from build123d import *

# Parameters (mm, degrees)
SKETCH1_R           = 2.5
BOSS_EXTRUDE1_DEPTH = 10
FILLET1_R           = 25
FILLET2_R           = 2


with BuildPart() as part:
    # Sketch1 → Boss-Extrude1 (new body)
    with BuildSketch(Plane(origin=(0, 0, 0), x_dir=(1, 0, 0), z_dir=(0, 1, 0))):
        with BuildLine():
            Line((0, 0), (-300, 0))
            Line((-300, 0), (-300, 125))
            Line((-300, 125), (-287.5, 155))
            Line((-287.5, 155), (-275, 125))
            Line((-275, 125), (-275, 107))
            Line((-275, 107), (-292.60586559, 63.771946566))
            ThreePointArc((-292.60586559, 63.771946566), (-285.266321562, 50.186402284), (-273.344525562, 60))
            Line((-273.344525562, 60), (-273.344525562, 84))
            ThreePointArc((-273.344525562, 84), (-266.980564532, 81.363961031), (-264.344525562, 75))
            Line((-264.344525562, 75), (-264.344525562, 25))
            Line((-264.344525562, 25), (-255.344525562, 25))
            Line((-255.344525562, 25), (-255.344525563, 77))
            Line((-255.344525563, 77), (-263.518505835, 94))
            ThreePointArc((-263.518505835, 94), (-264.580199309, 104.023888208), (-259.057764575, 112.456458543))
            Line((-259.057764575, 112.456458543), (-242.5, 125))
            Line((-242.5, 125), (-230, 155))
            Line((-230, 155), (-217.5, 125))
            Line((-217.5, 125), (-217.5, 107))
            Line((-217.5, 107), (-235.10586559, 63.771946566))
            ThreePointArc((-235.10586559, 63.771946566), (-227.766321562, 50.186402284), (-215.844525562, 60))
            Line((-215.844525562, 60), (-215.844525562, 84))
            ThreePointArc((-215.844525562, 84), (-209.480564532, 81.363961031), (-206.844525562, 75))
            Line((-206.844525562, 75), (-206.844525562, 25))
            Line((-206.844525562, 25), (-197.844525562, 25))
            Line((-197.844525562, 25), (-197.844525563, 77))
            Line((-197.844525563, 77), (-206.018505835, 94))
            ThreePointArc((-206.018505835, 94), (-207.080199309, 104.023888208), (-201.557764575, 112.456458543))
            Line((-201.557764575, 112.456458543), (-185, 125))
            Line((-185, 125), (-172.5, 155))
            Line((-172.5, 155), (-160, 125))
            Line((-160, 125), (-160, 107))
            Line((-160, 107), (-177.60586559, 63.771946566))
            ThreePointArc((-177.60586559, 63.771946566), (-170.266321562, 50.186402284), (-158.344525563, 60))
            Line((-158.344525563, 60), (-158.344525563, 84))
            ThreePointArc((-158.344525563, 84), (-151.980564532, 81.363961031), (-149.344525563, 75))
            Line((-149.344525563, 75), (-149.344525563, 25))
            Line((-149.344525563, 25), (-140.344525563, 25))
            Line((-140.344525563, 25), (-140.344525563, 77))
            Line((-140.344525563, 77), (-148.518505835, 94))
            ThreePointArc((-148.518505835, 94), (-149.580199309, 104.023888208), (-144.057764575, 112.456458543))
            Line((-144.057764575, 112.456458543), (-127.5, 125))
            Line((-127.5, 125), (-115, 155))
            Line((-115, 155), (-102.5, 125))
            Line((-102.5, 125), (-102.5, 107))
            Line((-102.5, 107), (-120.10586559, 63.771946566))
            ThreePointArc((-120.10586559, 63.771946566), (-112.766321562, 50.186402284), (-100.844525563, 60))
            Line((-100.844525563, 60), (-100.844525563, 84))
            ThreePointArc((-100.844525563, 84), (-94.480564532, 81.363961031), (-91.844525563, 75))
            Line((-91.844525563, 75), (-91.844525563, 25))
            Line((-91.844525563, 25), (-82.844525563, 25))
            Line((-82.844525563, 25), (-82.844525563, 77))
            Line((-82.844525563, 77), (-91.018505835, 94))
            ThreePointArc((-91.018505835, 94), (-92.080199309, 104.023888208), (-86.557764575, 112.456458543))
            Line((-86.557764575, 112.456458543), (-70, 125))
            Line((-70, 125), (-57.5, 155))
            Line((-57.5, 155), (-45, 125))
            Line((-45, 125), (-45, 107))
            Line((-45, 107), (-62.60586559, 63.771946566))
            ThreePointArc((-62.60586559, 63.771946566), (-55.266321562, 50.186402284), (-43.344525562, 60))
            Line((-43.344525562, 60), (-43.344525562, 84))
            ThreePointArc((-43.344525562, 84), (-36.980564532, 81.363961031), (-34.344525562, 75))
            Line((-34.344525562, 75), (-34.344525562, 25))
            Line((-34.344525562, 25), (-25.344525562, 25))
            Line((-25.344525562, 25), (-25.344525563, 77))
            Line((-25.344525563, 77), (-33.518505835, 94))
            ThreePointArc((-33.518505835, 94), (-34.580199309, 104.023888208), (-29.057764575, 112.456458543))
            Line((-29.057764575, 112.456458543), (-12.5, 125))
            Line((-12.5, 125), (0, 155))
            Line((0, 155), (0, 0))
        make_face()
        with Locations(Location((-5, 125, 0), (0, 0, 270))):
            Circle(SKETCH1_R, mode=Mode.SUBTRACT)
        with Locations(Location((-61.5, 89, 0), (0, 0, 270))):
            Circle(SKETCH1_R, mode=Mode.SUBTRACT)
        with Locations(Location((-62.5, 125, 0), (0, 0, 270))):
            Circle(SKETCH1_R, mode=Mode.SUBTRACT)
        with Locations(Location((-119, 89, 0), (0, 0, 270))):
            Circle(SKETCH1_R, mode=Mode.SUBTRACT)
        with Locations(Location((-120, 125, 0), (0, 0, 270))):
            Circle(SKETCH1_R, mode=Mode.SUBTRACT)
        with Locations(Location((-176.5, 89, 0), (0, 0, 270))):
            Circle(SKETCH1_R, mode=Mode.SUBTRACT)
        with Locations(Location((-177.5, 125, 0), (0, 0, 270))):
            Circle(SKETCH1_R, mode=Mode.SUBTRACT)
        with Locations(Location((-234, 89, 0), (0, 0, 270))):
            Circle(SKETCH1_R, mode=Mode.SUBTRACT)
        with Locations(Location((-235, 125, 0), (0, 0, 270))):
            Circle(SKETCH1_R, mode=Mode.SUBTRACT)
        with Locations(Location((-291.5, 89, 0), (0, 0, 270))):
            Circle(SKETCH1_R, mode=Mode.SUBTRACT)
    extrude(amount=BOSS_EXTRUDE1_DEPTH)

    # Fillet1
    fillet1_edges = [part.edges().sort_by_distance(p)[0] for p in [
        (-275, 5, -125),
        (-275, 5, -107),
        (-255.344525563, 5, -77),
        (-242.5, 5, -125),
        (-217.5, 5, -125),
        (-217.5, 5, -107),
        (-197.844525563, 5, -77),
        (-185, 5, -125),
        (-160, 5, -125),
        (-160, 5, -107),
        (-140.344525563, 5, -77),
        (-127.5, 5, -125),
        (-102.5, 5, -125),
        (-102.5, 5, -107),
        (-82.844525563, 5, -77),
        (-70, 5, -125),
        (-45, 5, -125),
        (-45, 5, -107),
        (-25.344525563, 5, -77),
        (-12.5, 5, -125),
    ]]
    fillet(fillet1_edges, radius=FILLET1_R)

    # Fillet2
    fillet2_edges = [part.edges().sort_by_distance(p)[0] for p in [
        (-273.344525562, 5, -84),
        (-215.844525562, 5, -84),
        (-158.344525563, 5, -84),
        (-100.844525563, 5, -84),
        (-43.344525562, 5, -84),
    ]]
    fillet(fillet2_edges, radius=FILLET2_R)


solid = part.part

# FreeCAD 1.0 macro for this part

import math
import FreeCAD as App
import Part
import Sketcher
from FreeCAD import Vector


def edges_at(feature, points):
    """Names of the edges that pass closest to the given points."""
    edges = feature.Shape.Edges
    near = lambda p: min(range(len(edges)), key=lambda i: edges[i].distToShape(Part.Vertex(*p))[0])
    return sorted({f"Edge{near(p) + 1}" for p in points})

doc = App.newDocument("Part")
body = doc.addObject("PartDesign::Body", "Body")

# Sketch on XZ plane
sketch1 = body.newObject("Sketcher::SketchObject", "Sketch")
sketch1.AttachmentSupport = (doc.getObject("XZ_Plane"), [""])
sketch1.MapMode = "FlatFace"
sketch1.addGeometry(Part.LineSegment(Vector(-300, 0, 0), Vector(0, 0, 0)), False)
sketch1.addGeometry(Part.LineSegment(Vector(0, 0, 0), Vector(0, -155, 0)), False)
sketch1.addGeometry(Part.LineSegment(Vector(0, -155, 0), Vector(-12.5, -125, 0)), False)
sketch1.addGeometry(Part.LineSegment(Vector(-12.5, -125, 0), Vector(-29.1, -112.5, 0)), False)
sketch1.addGeometry(Part.ArcOfCircle(Part.Circle(Vector(-20, -100.5, 0), Vector(0, 0, 1), 15), math.radians(154), math.radians(233)), False)
sketch1.addGeometry(Part.LineSegment(Vector(-33.5, -94, 0), Vector(-25.3, -77, 0)), False)
sketch1.addGeometry(Part.LineSegment(Vector(-25.3, -77, 0), Vector(-25.3, -25, 0)), False)
sketch1.addGeometry(Part.LineSegment(Vector(-25.3, -25, 0), Vector(-34.3, -25, 0)), False)
sketch1.addGeometry(Part.LineSegment(Vector(-34.3, -25, 0), Vector(-34.3, -75, 0)), False)
sketch1.addGeometry(Part.ArcOfCircle(Part.Circle(Vector(-43.3, -75, 0), Vector(0, 0, 1), 9), math.radians(-90), math.radians(0)), False)
sketch1.addGeometry(Part.LineSegment(Vector(-43.3, -84, 0), Vector(-43.3, -60, 0)), False)
sketch1.addGeometry(Part.ArcOfCircle(Part.Circle(Vector(-53.3, -60, 0), Vector(0, 0, 1), 10), math.radians(0), math.radians(202)), False)
sketch1.addGeometry(Part.LineSegment(Vector(-62.6, -63.8, 0), Vector(-45, -107, 0)), False)
sketch1.addGeometry(Part.LineSegment(Vector(-45, -107, 0), Vector(-45, -125, 0)), False)
sketch1.addGeometry(Part.LineSegment(Vector(-45, -125, 0), Vector(-57.5, -155, 0)), False)
sketch1.addGeometry(Part.LineSegment(Vector(-57.5, -155, 0), Vector(-70, -125, 0)), False)
sketch1.addGeometry(Part.LineSegment(Vector(-70, -125, 0), Vector(-86.6, -112.5, 0)), False)
sketch1.addGeometry(Part.ArcOfCircle(Part.Circle(Vector(-77.5, -100.5, 0), Vector(0, 0, 1), 15), math.radians(154), math.radians(233)), False)
sketch1.addGeometry(Part.LineSegment(Vector(-91, -94, 0), Vector(-82.8, -77, 0)), False)
sketch1.addGeometry(Part.LineSegment(Vector(-82.8, -77, 0), Vector(-82.8, -25, 0)), False)
sketch1.addGeometry(Part.LineSegment(Vector(-82.8, -25, 0), Vector(-91.8, -25, 0)), False)
sketch1.addGeometry(Part.LineSegment(Vector(-91.8, -25, 0), Vector(-91.8, -75, 0)), False)
sketch1.addGeometry(Part.ArcOfCircle(Part.Circle(Vector(-100.8, -75, 0), Vector(0, 0, 1), 9), math.radians(-90), math.radians(0)), False)
sketch1.addGeometry(Part.LineSegment(Vector(-100.8, -84, 0), Vector(-100.8, -60, 0)), False)
sketch1.addGeometry(Part.ArcOfCircle(Part.Circle(Vector(-110.8, -60, 0), Vector(0, 0, 1), 10), math.radians(0), math.radians(202)), False)
sketch1.addGeometry(Part.LineSegment(Vector(-120.1, -63.8, 0), Vector(-102.5, -107, 0)), False)
sketch1.addGeometry(Part.LineSegment(Vector(-102.5, -107, 0), Vector(-102.5, -125, 0)), False)
sketch1.addGeometry(Part.LineSegment(Vector(-102.5, -125, 0), Vector(-115, -155, 0)), False)
sketch1.addGeometry(Part.LineSegment(Vector(-115, -155, 0), Vector(-127.5, -125, 0)), False)
sketch1.addGeometry(Part.LineSegment(Vector(-127.5, -125, 0), Vector(-144.1, -112.5, 0)), False)
sketch1.addGeometry(Part.ArcOfCircle(Part.Circle(Vector(-135, -100.5, 0), Vector(0, 0, 1), 15), math.radians(154), math.radians(233)), False)
sketch1.addGeometry(Part.LineSegment(Vector(-148.5, -94, 0), Vector(-140.3, -77, 0)), False)
sketch1.addGeometry(Part.LineSegment(Vector(-140.3, -77, 0), Vector(-140.3, -25, 0)), False)
sketch1.addGeometry(Part.LineSegment(Vector(-140.3, -25, 0), Vector(-149.3, -25, 0)), False)
sketch1.addGeometry(Part.LineSegment(Vector(-149.3, -25, 0), Vector(-149.3, -75, 0)), False)
sketch1.addGeometry(Part.ArcOfCircle(Part.Circle(Vector(-158.3, -75, 0), Vector(0, 0, 1), 9), math.radians(-90), math.radians(0)), False)
sketch1.addGeometry(Part.LineSegment(Vector(-158.3, -84, 0), Vector(-158.3, -60, 0)), False)
sketch1.addGeometry(Part.ArcOfCircle(Part.Circle(Vector(-168.3, -60, 0), Vector(0, 0, 1), 10), math.radians(0), math.radians(202)), False)
sketch1.addGeometry(Part.LineSegment(Vector(-177.6, -63.8, 0), Vector(-160, -107, 0)), False)
sketch1.addGeometry(Part.LineSegment(Vector(-160, -107, 0), Vector(-160, -125, 0)), False)
sketch1.addGeometry(Part.LineSegment(Vector(-160, -125, 0), Vector(-172.5, -155, 0)), False)
sketch1.addGeometry(Part.LineSegment(Vector(-172.5, -155, 0), Vector(-185, -125, 0)), False)
sketch1.addGeometry(Part.LineSegment(Vector(-185, -125, 0), Vector(-201.6, -112.5, 0)), False)
sketch1.addGeometry(Part.ArcOfCircle(Part.Circle(Vector(-192.5, -100.5, 0), Vector(0, 0, 1), 15), math.radians(154), math.radians(233)), False)
sketch1.addGeometry(Part.LineSegment(Vector(-206, -94, 0), Vector(-197.8, -77, 0)), False)
sketch1.addGeometry(Part.LineSegment(Vector(-197.8, -77, 0), Vector(-197.8, -25, 0)), False)
sketch1.addGeometry(Part.LineSegment(Vector(-197.8, -25, 0), Vector(-206.8, -25, 0)), False)
sketch1.addGeometry(Part.LineSegment(Vector(-206.8, -25, 0), Vector(-206.8, -75, 0)), False)
sketch1.addGeometry(Part.ArcOfCircle(Part.Circle(Vector(-215.8, -75, 0), Vector(0, 0, 1), 9), math.radians(-90), math.radians(0)), False)
sketch1.addGeometry(Part.LineSegment(Vector(-215.8, -84, 0), Vector(-215.8, -60, 0)), False)
sketch1.addGeometry(Part.ArcOfCircle(Part.Circle(Vector(-225.8, -60, 0), Vector(0, 0, 1), 10), math.radians(0), math.radians(202)), False)
sketch1.addGeometry(Part.LineSegment(Vector(-235.1, -63.8, 0), Vector(-217.5, -107, 0)), False)
sketch1.addGeometry(Part.LineSegment(Vector(-217.5, -107, 0), Vector(-217.5, -125, 0)), False)
sketch1.addGeometry(Part.LineSegment(Vector(-217.5, -125, 0), Vector(-230, -155, 0)), False)
sketch1.addGeometry(Part.LineSegment(Vector(-230, -155, 0), Vector(-242.5, -125, 0)), False)
sketch1.addGeometry(Part.LineSegment(Vector(-242.5, -125, 0), Vector(-259.1, -112.5, 0)), False)
sketch1.addGeometry(Part.ArcOfCircle(Part.Circle(Vector(-250, -100.5, 0), Vector(0, 0, 1), 15), math.radians(154), math.radians(233)), False)
sketch1.addGeometry(Part.LineSegment(Vector(-263.5, -94, 0), Vector(-255.3, -77, 0)), False)
sketch1.addGeometry(Part.LineSegment(Vector(-255.3, -77, 0), Vector(-255.3, -25, 0)), False)
sketch1.addGeometry(Part.LineSegment(Vector(-255.3, -25, 0), Vector(-264.3, -25, 0)), False)
sketch1.addGeometry(Part.LineSegment(Vector(-264.3, -25, 0), Vector(-264.3, -75, 0)), False)
sketch1.addGeometry(Part.ArcOfCircle(Part.Circle(Vector(-273.3, -75, 0), Vector(0, 0, 1), 9), math.radians(-90), math.radians(0)), False)
sketch1.addGeometry(Part.LineSegment(Vector(-273.3, -84, 0), Vector(-273.3, -60, 0)), False)
sketch1.addGeometry(Part.ArcOfCircle(Part.Circle(Vector(-283.3, -60, 0), Vector(0, 0, 1), 10), math.radians(0), math.radians(202)), False)
sketch1.addGeometry(Part.LineSegment(Vector(-292.6, -63.8, 0), Vector(-275, -107, 0)), False)
sketch1.addGeometry(Part.LineSegment(Vector(-275, -107, 0), Vector(-275, -125, 0)), False)
sketch1.addGeometry(Part.LineSegment(Vector(-275, -125, 0), Vector(-287.5, -155, 0)), False)
sketch1.addGeometry(Part.LineSegment(Vector(-287.5, -155, 0), Vector(-300, -125, 0)), False)
sketch1.addGeometry(Part.LineSegment(Vector(-300, -125, 0), Vector(-300, 0, 0)), False)
sketch1.addGeometry(Part.Circle(Vector(-61.5, -89, 0), Vector(0, 0, 1), 2.5), False)
sketch1.addGeometry(Part.Circle(Vector(-119, -89, 0), Vector(0, 0, 1), 2.5), False)
sketch1.addGeometry(Part.Circle(Vector(-176.5, -89, 0), Vector(0, 0, 1), 2.5), False)
sketch1.addGeometry(Part.Circle(Vector(-234, -89, 0), Vector(0, 0, 1), 2.5), False)
sketch1.addGeometry(Part.Circle(Vector(-291.5, -89, 0), Vector(0, 0, 1), 2.5), False)
sketch1.addGeometry(Part.Circle(Vector(-5, -125, 0), Vector(0, 0, 1), 2.5), False)
sketch1.addGeometry(Part.Circle(Vector(-62.5, -125, 0), Vector(0, 0, 1), 2.5), False)
sketch1.addGeometry(Part.Circle(Vector(-120, -125, 0), Vector(0, 0, 1), 2.5), False)
sketch1.addGeometry(Part.Circle(Vector(-177.5, -125, 0), Vector(0, 0, 1), 2.5), False)
sketch1.addGeometry(Part.Circle(Vector(-235, -125, 0), Vector(0, 0, 1), 2.5), False)
sketch1.addConstraint(Sketcher.Constraint("Coincident", 0, 2, 1, 1))
sketch1.addConstraint(Sketcher.Constraint("Coincident", 1, 2, 2, 1))
sketch1.addConstraint(Sketcher.Constraint("Coincident", 2, 2, 3, 1))
sketch1.addConstraint(Sketcher.Constraint("Tangent", 3, 2, 4, 2))
sketch1.addConstraint(Sketcher.Constraint("Tangent", 4, 1, 5, 1))
sketch1.addConstraint(Sketcher.Constraint("Coincident", 5, 2, 6, 1))
sketch1.addConstraint(Sketcher.Constraint("Coincident", 6, 2, 7, 1))
sketch1.addConstraint(Sketcher.Constraint("Coincident", 7, 2, 8, 1))
sketch1.addConstraint(Sketcher.Constraint("Tangent", 8, 2, 9, 2))
sketch1.addConstraint(Sketcher.Constraint("Coincident", 9, 1, 10, 1))
sketch1.addConstraint(Sketcher.Constraint("Tangent", 10, 2, 11, 1))
sketch1.addConstraint(Sketcher.Constraint("Tangent", 11, 2, 12, 1))
sketch1.addConstraint(Sketcher.Constraint("Coincident", 12, 2, 13, 1))
sketch1.addConstraint(Sketcher.Constraint("Coincident", 13, 2, 14, 1))
sketch1.addConstraint(Sketcher.Constraint("Coincident", 14, 2, 15, 1))
sketch1.addConstraint(Sketcher.Constraint("Coincident", 15, 2, 16, 1))
sketch1.addConstraint(Sketcher.Constraint("Tangent", 16, 2, 17, 2))
sketch1.addConstraint(Sketcher.Constraint("Tangent", 17, 1, 18, 1))
sketch1.addConstraint(Sketcher.Constraint("Coincident", 18, 2, 19, 1))
sketch1.addConstraint(Sketcher.Constraint("Coincident", 19, 2, 20, 1))
sketch1.addConstraint(Sketcher.Constraint("Coincident", 20, 2, 21, 1))
sketch1.addConstraint(Sketcher.Constraint("Tangent", 21, 2, 22, 2))
sketch1.addConstraint(Sketcher.Constraint("Coincident", 22, 1, 23, 1))
sketch1.addConstraint(Sketcher.Constraint("Tangent", 23, 2, 24, 1))
sketch1.addConstraint(Sketcher.Constraint("Tangent", 24, 2, 25, 1))
sketch1.addConstraint(Sketcher.Constraint("Coincident", 25, 2, 26, 1))
sketch1.addConstraint(Sketcher.Constraint("Coincident", 26, 2, 27, 1))
sketch1.addConstraint(Sketcher.Constraint("Coincident", 27, 2, 28, 1))
sketch1.addConstraint(Sketcher.Constraint("Coincident", 28, 2, 29, 1))
sketch1.addConstraint(Sketcher.Constraint("Tangent", 29, 2, 30, 2))
sketch1.addConstraint(Sketcher.Constraint("Tangent", 30, 1, 31, 1))
sketch1.addConstraint(Sketcher.Constraint("Coincident", 31, 2, 32, 1))
sketch1.addConstraint(Sketcher.Constraint("Coincident", 32, 2, 33, 1))
sketch1.addConstraint(Sketcher.Constraint("Coincident", 33, 2, 34, 1))
sketch1.addConstraint(Sketcher.Constraint("Tangent", 34, 2, 35, 2))
sketch1.addConstraint(Sketcher.Constraint("Coincident", 35, 1, 36, 1))
sketch1.addConstraint(Sketcher.Constraint("Tangent", 36, 2, 37, 1))
sketch1.addConstraint(Sketcher.Constraint("Tangent", 37, 2, 38, 1))
sketch1.addConstraint(Sketcher.Constraint("Coincident", 38, 2, 39, 1))
sketch1.addConstraint(Sketcher.Constraint("Coincident", 39, 2, 40, 1))
sketch1.addConstraint(Sketcher.Constraint("Coincident", 40, 2, 41, 1))
sketch1.addConstraint(Sketcher.Constraint("Coincident", 41, 2, 42, 1))
sketch1.addConstraint(Sketcher.Constraint("Tangent", 42, 2, 43, 2))
sketch1.addConstraint(Sketcher.Constraint("Tangent", 43, 1, 44, 1))
sketch1.addConstraint(Sketcher.Constraint("Coincident", 44, 2, 45, 1))
sketch1.addConstraint(Sketcher.Constraint("Coincident", 45, 2, 46, 1))
sketch1.addConstraint(Sketcher.Constraint("Coincident", 46, 2, 47, 1))
sketch1.addConstraint(Sketcher.Constraint("Tangent", 47, 2, 48, 2))
sketch1.addConstraint(Sketcher.Constraint("Coincident", 48, 1, 49, 1))
sketch1.addConstraint(Sketcher.Constraint("Tangent", 49, 2, 50, 1))
sketch1.addConstraint(Sketcher.Constraint("Tangent", 50, 2, 51, 1))
sketch1.addConstraint(Sketcher.Constraint("Coincident", 51, 2, 52, 1))
sketch1.addConstraint(Sketcher.Constraint("Coincident", 52, 2, 53, 1))
sketch1.addConstraint(Sketcher.Constraint("Coincident", 53, 2, 54, 1))
sketch1.addConstraint(Sketcher.Constraint("Coincident", 54, 2, 55, 1))
sketch1.addConstraint(Sketcher.Constraint("Tangent", 55, 2, 56, 2))
sketch1.addConstraint(Sketcher.Constraint("Tangent", 56, 1, 57, 1))
sketch1.addConstraint(Sketcher.Constraint("Coincident", 57, 2, 58, 1))
sketch1.addConstraint(Sketcher.Constraint("Coincident", 58, 2, 59, 1))
sketch1.addConstraint(Sketcher.Constraint("Coincident", 59, 2, 60, 1))
sketch1.addConstraint(Sketcher.Constraint("Tangent", 60, 2, 61, 2))
sketch1.addConstraint(Sketcher.Constraint("Coincident", 61, 1, 62, 1))
sketch1.addConstraint(Sketcher.Constraint("Tangent", 62, 2, 63, 1))
sketch1.addConstraint(Sketcher.Constraint("Tangent", 63, 2, 64, 1))
sketch1.addConstraint(Sketcher.Constraint("Coincident", 64, 2, 65, 1))
sketch1.addConstraint(Sketcher.Constraint("Coincident", 65, 2, 66, 1))
sketch1.addConstraint(Sketcher.Constraint("Coincident", 66, 2, 67, 1))
sketch1.addConstraint(Sketcher.Constraint("Coincident", 67, 2, 68, 1))
sketch1.addConstraint(Sketcher.Constraint("Coincident", 68, 2, 0, 1))
sketch1.addConstraint(Sketcher.Constraint("Horizontal", 0))
sketch1.addConstraint(Sketcher.Constraint("Vertical", 1))
sketch1.addConstraint(Sketcher.Constraint("Vertical", 6))
sketch1.addConstraint(Sketcher.Constraint("Horizontal", 7))
sketch1.addConstraint(Sketcher.Constraint("Vertical", 8))
sketch1.addConstraint(Sketcher.Constraint("Vertical", 10))
sketch1.addConstraint(Sketcher.Constraint("Vertical", 13))
sketch1.addConstraint(Sketcher.Constraint("Vertical", 19))
sketch1.addConstraint(Sketcher.Constraint("Horizontal", 20))
sketch1.addConstraint(Sketcher.Constraint("Vertical", 21))
sketch1.addConstraint(Sketcher.Constraint("Vertical", 23))
sketch1.addConstraint(Sketcher.Constraint("Vertical", 26))
sketch1.addConstraint(Sketcher.Constraint("Vertical", 32))
sketch1.addConstraint(Sketcher.Constraint("Horizontal", 33))
sketch1.addConstraint(Sketcher.Constraint("Vertical", 34))
sketch1.addConstraint(Sketcher.Constraint("Vertical", 36))
sketch1.addConstraint(Sketcher.Constraint("Vertical", 39))
sketch1.addConstraint(Sketcher.Constraint("Vertical", 45))
sketch1.addConstraint(Sketcher.Constraint("Horizontal", 46))
sketch1.addConstraint(Sketcher.Constraint("Vertical", 47))
sketch1.addConstraint(Sketcher.Constraint("Vertical", 49))
sketch1.addConstraint(Sketcher.Constraint("Vertical", 52))
sketch1.addConstraint(Sketcher.Constraint("Vertical", 58))
sketch1.addConstraint(Sketcher.Constraint("Horizontal", 59))
sketch1.addConstraint(Sketcher.Constraint("Vertical", 60))
sketch1.addConstraint(Sketcher.Constraint("Vertical", 62))
sketch1.addConstraint(Sketcher.Constraint("Vertical", 65))
sketch1.addConstraint(Sketcher.Constraint("Vertical", 68))
sketch1.addConstraint(Sketcher.Constraint("Coincident", 0, 2, -1, 1))
sketch1.addConstraint(Sketcher.Constraint("Equal", 4, 17))
sketch1.addConstraint(Sketcher.Constraint("Equal", 9, 22))
sketch1.addConstraint(Sketcher.Constraint("Equal", 11, 24))
sketch1.addConstraint(Sketcher.Constraint("Equal", 17, 30))
sketch1.addConstraint(Sketcher.Constraint("Equal", 22, 35))
sketch1.addConstraint(Sketcher.Constraint("Equal", 24, 37))
sketch1.addConstraint(Sketcher.Constraint("Equal", 30, 43))
sketch1.addConstraint(Sketcher.Constraint("Equal", 35, 48))
sketch1.addConstraint(Sketcher.Constraint("Equal", 37, 50))
sketch1.addConstraint(Sketcher.Constraint("Equal", 43, 56))
sketch1.addConstraint(Sketcher.Constraint("Equal", 48, 61))
sketch1.addConstraint(Sketcher.Constraint("Equal", 50, 63))
sketch1.addConstraint(Sketcher.Constraint("Equal", 69, 70))
sketch1.addConstraint(Sketcher.Constraint("Equal", 70, 71))
sketch1.addConstraint(Sketcher.Constraint("Equal", 71, 72))
sketch1.addConstraint(Sketcher.Constraint("Equal", 72, 73))
sketch1.addConstraint(Sketcher.Constraint("Equal", 73, 74))
sketch1.addConstraint(Sketcher.Constraint("Equal", 74, 75))
sketch1.addConstraint(Sketcher.Constraint("Equal", 75, 76))
sketch1.addConstraint(Sketcher.Constraint("Equal", 76, 77))
sketch1.addConstraint(Sketcher.Constraint("Equal", 77, 78))
sketch1.addConstraint(Sketcher.Constraint("Parallel", 2, 15))
sketch1.addConstraint(Sketcher.Constraint("Parallel", 3, 16))
sketch1.addConstraint(Sketcher.Constraint("Parallel", 5, 18))
sketch1.addConstraint(Sketcher.Constraint("Parallel", 12, 25))
sketch1.addConstraint(Sketcher.Constraint("Parallel", 14, 27))
sketch1.addConstraint(Sketcher.Constraint("Parallel", 15, 28))
sketch1.addConstraint(Sketcher.Constraint("Parallel", 16, 29))
sketch1.addConstraint(Sketcher.Constraint("Parallel", 18, 31))
sketch1.addConstraint(Sketcher.Constraint("Parallel", 25, 38))
sketch1.addConstraint(Sketcher.Constraint("Parallel", 27, 40))
sketch1.addConstraint(Sketcher.Constraint("Parallel", 28, 41))
sketch1.addConstraint(Sketcher.Constraint("Parallel", 29, 42))
sketch1.addConstraint(Sketcher.Constraint("Parallel", 31, 44))
sketch1.addConstraint(Sketcher.Constraint("Parallel", 38, 51))
sketch1.addConstraint(Sketcher.Constraint("Parallel", 40, 53))
sketch1.addConstraint(Sketcher.Constraint("Parallel", 41, 54))
sketch1.addConstraint(Sketcher.Constraint("Parallel", 42, 55))
sketch1.addConstraint(Sketcher.Constraint("Parallel", 44, 57))
sketch1.addConstraint(Sketcher.Constraint("Parallel", 51, 64))
sketch1.addConstraint(Sketcher.Constraint("Parallel", 53, 66))
sketch1.addConstraint(Sketcher.Constraint("Parallel", 54, 67))
sketch1.addConstraint(Sketcher.Constraint("Horizontal", 4, 3, 17, 3))
sketch1.addConstraint(Sketcher.Constraint("Horizontal", 9, 3, 22, 3))
sketch1.addConstraint(Sketcher.Constraint("Horizontal", 11, 3, 24, 3))
sketch1.addConstraint(Sketcher.Constraint("Horizontal", 17, 3, 30, 3))
sketch1.addConstraint(Sketcher.Constraint("Horizontal", 22, 3, 35, 3))
sketch1.addConstraint(Sketcher.Constraint("Horizontal", 24, 3, 37, 3))
sketch1.addConstraint(Sketcher.Constraint("Horizontal", 30, 3, 43, 3))
sketch1.addConstraint(Sketcher.Constraint("Horizontal", 35, 3, 48, 3))
sketch1.addConstraint(Sketcher.Constraint("Horizontal", 37, 3, 50, 3))
sketch1.addConstraint(Sketcher.Constraint("Horizontal", 43, 3, 56, 3))
sketch1.addConstraint(Sketcher.Constraint("Horizontal", 48, 3, 61, 3))
sketch1.addConstraint(Sketcher.Constraint("Horizontal", 50, 3, 63, 3))
sketch1.addConstraint(Sketcher.Constraint("Horizontal", 69, 3, 70, 3))
sketch1.addConstraint(Sketcher.Constraint("Horizontal", 70, 3, 71, 3))
sketch1.addConstraint(Sketcher.Constraint("Horizontal", 71, 3, 72, 3))
sketch1.addConstraint(Sketcher.Constraint("Horizontal", 72, 3, 73, 3))
sketch1.addConstraint(Sketcher.Constraint("Horizontal", 74, 3, 75, 3))
sketch1.addConstraint(Sketcher.Constraint("Horizontal", 75, 3, 76, 3))
sketch1.addConstraint(Sketcher.Constraint("Horizontal", 76, 3, 77, 3))
sketch1.addConstraint(Sketcher.Constraint("Horizontal", 77, 3, 78, 3))
sketch1.addConstraint(Sketcher.Constraint("Horizontal", 78, 3, 2, 2))
sketch1.addConstraint(Sketcher.Constraint("Horizontal", 2, 2, 13, 2))
sketch1.addConstraint(Sketcher.Constraint("Horizontal", 1, 2, 14, 2))
sketch1.addConstraint(Sketcher.Constraint("Horizontal", 13, 2, 15, 2))
sketch1.addConstraint(Sketcher.Constraint("Horizontal", 5, 2, 18, 2))
sketch1.addConstraint(Sketcher.Constraint("Horizontal", 7, 2, 19, 2))
sketch1.addConstraint(Sketcher.Constraint("Horizontal", 12, 2, 25, 2))
sketch1.addConstraint(Sketcher.Constraint("Horizontal", 15, 2, 26, 2))
sketch1.addConstraint(Sketcher.Constraint("Horizontal", 14, 2, 27, 2))
sketch1.addConstraint(Sketcher.Constraint("Horizontal", 26, 2, 28, 2))
sketch1.addConstraint(Sketcher.Constraint("Horizontal", 18, 2, 31, 2))
sketch1.addConstraint(Sketcher.Constraint("Horizontal", 20, 2, 32, 2))
sketch1.addConstraint(Sketcher.Constraint("Horizontal", 25, 2, 38, 2))
sketch1.addConstraint(Sketcher.Constraint("Horizontal", 28, 2, 39, 2))
sketch1.addConstraint(Sketcher.Constraint("Horizontal", 27, 2, 40, 2))
sketch1.addConstraint(Sketcher.Constraint("Horizontal", 39, 2, 41, 2))
sketch1.addConstraint(Sketcher.Constraint("Horizontal", 31, 2, 44, 2))
sketch1.addConstraint(Sketcher.Constraint("Horizontal", 33, 2, 45, 2))
sketch1.addConstraint(Sketcher.Constraint("Horizontal", 38, 2, 51, 2))
sketch1.addConstraint(Sketcher.Constraint("Horizontal", 41, 2, 52, 2))
sketch1.addConstraint(Sketcher.Constraint("Horizontal", 40, 2, 53, 2))
sketch1.addConstraint(Sketcher.Constraint("Horizontal", 52, 2, 54, 2))
sketch1.addConstraint(Sketcher.Constraint("Horizontal", 44, 2, 57, 2))
sketch1.addConstraint(Sketcher.Constraint("Horizontal", 46, 2, 58, 2))
sketch1.addConstraint(Sketcher.Constraint("Horizontal", 51, 2, 64, 2))
sketch1.addConstraint(Sketcher.Constraint("Horizontal", 54, 2, 65, 2))
sketch1.addConstraint(Sketcher.Constraint("Horizontal", 53, 2, 66, 2))
sketch1.addConstraint(Sketcher.Constraint("Horizontal", 65, 2, 67, 2))
sketch1.addConstraint(Sketcher.Constraint("Equal", 7, 20))
sketch1.addConstraint(Sketcher.Constraint("Equal", 20, 33))
sketch1.addConstraint(Sketcher.Constraint("Equal", 33, 46))
sketch1.addConstraint(Sketcher.Constraint("Equal", 46, 59))
sketch1.addConstraint(Sketcher.Constraint("Equal", 2, 14))
sketch1.addConstraint(Sketcher.Constraint("Diameter", 69, 5.0))
sketch1.addConstraint(Sketcher.Constraint("Radius", 4, 15.0))
sketch1.addConstraint(Sketcher.Constraint("Radius", 9, 9.0))
sketch1.addConstraint(Sketcher.Constraint("Radius", 11, 10.0))
sketch1.addConstraint(Sketcher.Constraint("DistanceX", 0, 1, 0, 2, 300.0))
sketch1.addConstraint(Sketcher.Constraint("DistanceX", 7, 2, 7, 1, 9.0))
sketch1.addConstraint(Sketcher.Constraint("DistanceY", 1, 2, 1, 1, 155.0))
sketch1.addConstraint(Sketcher.Constraint("DistanceY", 6, 1, 6, 2, 52.0))
sketch1.addConstraint(Sketcher.Constraint("DistanceY", 8, 2, 8, 1, 50.0))
sketch1.addConstraint(Sketcher.Constraint("DistanceY", 10, 1, 10, 2, 24.0))
sketch1.addConstraint(Sketcher.Constraint("DistanceY", 13, 2, 13, 1, 18.0))
sketch1.addConstraint(Sketcher.Constraint("DistanceY", 68, 1, 68, 2, 125.0))
sketch1.addConstraint(Sketcher.Constraint("DistanceX", 4, 3, -1, 1, 20.0))
sketch1.addConstraint(Sketcher.Constraint("DistanceY", 9, 3, -1, 1, 75.0))
sketch1.addConstraint(Sketcher.Constraint("DistanceX", 30, 3, -1, 1, 135.0))
sketch1.addConstraint(Sketcher.Constraint("DistanceX", 56, 3, -1, 1, 250.0))
sketch1.addConstraint(Sketcher.Constraint("DistanceY", 69, 3, -1, 1, 89.0))
sketch1.addConstraint(Sketcher.Constraint("DistanceX", 70, 3, -1, 1, 119.0))
sketch1.addConstraint(Sketcher.Constraint("DistanceX", 72, 3, -1, 1, 234.0))
sketch1.addConstraint(Sketcher.Constraint("DistanceX", 74, 3, -1, 1, 5.0))
sketch1.addConstraint(Sketcher.Constraint("DistanceX", 76, 3, -1, 1, 120.0))
sketch1.addConstraint(Sketcher.Constraint("DistanceX", 78, 3, -1, 1, 235.0))
sketch1.addConstraint(Sketcher.Constraint("DistanceY", 4, 1, -1, 1, 94.0))
sketch1.addConstraint(Sketcher.Constraint("DistanceX", 12, 2, -1, 1, 45.0))
sketch1.addConstraint(Sketcher.Constraint("DistanceX", 15, 2, -1, 1, 70.0))
sketch1.addConstraint(Sketcher.Constraint("DistanceX", 38, 2, -1, 1, 160.0))
sketch1.addConstraint(Sketcher.Constraint("DistanceY", 4, 3, -1, 1, 100.5))
sketch1.addConstraint(Sketcher.Constraint("DistanceX", 69, 3, -1, 1, 61.5))
sketch1.addConstraint(Sketcher.Constraint("DistanceX", 71, 3, -1, 1, 176.5))
sketch1.addConstraint(Sketcher.Constraint("DistanceX", 73, 3, -1, 1, 291.5))
sketch1.addConstraint(Sketcher.Constraint("DistanceX", 75, 3, -1, 1, 62.5))
sketch1.addConstraint(Sketcher.Constraint("DistanceX", 77, 3, -1, 1, 177.5))
sketch1.addConstraint(Sketcher.Constraint("Distance", 12, 46.675809))
pad1 = body.newObject("PartDesign::Pad", "Pad")
pad1.Profile = sketch1
pad1.Length = 10
pad1.Reversed = True
doc.recompute()

fillet = body.newObject("PartDesign::Fillet", "Fillet")
fillet.Base = (pad1, edges_at(pad1, [
    (-275, 5, -125),
    (-275, 5, -107),
    (-255.345, 5, -77),
    (-242.5, 5, -125),
    (-217.5, 5, -125),
    (-217.5, 5, -107),
    (-197.845, 5, -77),
    (-185, 5, -125),
    (-160, 5, -125),
    (-160, 5, -107),
    (-140.345, 5, -77),
    (-127.5, 5, -125),
    (-102.5, 5, -125),
    (-102.5, 5, -107),
    (-82.845, 5, -77),
    (-70, 5, -125),
    (-45, 5, -125),
    (-45, 5, -107),
    (-25.345, 5, -77),
    (-12.5, 5, -125),
]))
fillet.Radius = 25
doc.recompute()

fillet2 = body.newObject("PartDesign::Fillet", "Fillet001")
fillet2.Base = (fillet, edges_at(fillet, [
    (-273.345, 5, -84),
    (-215.845, 5, -84),
    (-158.345, 5, -84),
    (-100.845, 5, -84),
    (-43.345, 5, -84),
]))
fillet2.Radius = 2

doc.recompute()
